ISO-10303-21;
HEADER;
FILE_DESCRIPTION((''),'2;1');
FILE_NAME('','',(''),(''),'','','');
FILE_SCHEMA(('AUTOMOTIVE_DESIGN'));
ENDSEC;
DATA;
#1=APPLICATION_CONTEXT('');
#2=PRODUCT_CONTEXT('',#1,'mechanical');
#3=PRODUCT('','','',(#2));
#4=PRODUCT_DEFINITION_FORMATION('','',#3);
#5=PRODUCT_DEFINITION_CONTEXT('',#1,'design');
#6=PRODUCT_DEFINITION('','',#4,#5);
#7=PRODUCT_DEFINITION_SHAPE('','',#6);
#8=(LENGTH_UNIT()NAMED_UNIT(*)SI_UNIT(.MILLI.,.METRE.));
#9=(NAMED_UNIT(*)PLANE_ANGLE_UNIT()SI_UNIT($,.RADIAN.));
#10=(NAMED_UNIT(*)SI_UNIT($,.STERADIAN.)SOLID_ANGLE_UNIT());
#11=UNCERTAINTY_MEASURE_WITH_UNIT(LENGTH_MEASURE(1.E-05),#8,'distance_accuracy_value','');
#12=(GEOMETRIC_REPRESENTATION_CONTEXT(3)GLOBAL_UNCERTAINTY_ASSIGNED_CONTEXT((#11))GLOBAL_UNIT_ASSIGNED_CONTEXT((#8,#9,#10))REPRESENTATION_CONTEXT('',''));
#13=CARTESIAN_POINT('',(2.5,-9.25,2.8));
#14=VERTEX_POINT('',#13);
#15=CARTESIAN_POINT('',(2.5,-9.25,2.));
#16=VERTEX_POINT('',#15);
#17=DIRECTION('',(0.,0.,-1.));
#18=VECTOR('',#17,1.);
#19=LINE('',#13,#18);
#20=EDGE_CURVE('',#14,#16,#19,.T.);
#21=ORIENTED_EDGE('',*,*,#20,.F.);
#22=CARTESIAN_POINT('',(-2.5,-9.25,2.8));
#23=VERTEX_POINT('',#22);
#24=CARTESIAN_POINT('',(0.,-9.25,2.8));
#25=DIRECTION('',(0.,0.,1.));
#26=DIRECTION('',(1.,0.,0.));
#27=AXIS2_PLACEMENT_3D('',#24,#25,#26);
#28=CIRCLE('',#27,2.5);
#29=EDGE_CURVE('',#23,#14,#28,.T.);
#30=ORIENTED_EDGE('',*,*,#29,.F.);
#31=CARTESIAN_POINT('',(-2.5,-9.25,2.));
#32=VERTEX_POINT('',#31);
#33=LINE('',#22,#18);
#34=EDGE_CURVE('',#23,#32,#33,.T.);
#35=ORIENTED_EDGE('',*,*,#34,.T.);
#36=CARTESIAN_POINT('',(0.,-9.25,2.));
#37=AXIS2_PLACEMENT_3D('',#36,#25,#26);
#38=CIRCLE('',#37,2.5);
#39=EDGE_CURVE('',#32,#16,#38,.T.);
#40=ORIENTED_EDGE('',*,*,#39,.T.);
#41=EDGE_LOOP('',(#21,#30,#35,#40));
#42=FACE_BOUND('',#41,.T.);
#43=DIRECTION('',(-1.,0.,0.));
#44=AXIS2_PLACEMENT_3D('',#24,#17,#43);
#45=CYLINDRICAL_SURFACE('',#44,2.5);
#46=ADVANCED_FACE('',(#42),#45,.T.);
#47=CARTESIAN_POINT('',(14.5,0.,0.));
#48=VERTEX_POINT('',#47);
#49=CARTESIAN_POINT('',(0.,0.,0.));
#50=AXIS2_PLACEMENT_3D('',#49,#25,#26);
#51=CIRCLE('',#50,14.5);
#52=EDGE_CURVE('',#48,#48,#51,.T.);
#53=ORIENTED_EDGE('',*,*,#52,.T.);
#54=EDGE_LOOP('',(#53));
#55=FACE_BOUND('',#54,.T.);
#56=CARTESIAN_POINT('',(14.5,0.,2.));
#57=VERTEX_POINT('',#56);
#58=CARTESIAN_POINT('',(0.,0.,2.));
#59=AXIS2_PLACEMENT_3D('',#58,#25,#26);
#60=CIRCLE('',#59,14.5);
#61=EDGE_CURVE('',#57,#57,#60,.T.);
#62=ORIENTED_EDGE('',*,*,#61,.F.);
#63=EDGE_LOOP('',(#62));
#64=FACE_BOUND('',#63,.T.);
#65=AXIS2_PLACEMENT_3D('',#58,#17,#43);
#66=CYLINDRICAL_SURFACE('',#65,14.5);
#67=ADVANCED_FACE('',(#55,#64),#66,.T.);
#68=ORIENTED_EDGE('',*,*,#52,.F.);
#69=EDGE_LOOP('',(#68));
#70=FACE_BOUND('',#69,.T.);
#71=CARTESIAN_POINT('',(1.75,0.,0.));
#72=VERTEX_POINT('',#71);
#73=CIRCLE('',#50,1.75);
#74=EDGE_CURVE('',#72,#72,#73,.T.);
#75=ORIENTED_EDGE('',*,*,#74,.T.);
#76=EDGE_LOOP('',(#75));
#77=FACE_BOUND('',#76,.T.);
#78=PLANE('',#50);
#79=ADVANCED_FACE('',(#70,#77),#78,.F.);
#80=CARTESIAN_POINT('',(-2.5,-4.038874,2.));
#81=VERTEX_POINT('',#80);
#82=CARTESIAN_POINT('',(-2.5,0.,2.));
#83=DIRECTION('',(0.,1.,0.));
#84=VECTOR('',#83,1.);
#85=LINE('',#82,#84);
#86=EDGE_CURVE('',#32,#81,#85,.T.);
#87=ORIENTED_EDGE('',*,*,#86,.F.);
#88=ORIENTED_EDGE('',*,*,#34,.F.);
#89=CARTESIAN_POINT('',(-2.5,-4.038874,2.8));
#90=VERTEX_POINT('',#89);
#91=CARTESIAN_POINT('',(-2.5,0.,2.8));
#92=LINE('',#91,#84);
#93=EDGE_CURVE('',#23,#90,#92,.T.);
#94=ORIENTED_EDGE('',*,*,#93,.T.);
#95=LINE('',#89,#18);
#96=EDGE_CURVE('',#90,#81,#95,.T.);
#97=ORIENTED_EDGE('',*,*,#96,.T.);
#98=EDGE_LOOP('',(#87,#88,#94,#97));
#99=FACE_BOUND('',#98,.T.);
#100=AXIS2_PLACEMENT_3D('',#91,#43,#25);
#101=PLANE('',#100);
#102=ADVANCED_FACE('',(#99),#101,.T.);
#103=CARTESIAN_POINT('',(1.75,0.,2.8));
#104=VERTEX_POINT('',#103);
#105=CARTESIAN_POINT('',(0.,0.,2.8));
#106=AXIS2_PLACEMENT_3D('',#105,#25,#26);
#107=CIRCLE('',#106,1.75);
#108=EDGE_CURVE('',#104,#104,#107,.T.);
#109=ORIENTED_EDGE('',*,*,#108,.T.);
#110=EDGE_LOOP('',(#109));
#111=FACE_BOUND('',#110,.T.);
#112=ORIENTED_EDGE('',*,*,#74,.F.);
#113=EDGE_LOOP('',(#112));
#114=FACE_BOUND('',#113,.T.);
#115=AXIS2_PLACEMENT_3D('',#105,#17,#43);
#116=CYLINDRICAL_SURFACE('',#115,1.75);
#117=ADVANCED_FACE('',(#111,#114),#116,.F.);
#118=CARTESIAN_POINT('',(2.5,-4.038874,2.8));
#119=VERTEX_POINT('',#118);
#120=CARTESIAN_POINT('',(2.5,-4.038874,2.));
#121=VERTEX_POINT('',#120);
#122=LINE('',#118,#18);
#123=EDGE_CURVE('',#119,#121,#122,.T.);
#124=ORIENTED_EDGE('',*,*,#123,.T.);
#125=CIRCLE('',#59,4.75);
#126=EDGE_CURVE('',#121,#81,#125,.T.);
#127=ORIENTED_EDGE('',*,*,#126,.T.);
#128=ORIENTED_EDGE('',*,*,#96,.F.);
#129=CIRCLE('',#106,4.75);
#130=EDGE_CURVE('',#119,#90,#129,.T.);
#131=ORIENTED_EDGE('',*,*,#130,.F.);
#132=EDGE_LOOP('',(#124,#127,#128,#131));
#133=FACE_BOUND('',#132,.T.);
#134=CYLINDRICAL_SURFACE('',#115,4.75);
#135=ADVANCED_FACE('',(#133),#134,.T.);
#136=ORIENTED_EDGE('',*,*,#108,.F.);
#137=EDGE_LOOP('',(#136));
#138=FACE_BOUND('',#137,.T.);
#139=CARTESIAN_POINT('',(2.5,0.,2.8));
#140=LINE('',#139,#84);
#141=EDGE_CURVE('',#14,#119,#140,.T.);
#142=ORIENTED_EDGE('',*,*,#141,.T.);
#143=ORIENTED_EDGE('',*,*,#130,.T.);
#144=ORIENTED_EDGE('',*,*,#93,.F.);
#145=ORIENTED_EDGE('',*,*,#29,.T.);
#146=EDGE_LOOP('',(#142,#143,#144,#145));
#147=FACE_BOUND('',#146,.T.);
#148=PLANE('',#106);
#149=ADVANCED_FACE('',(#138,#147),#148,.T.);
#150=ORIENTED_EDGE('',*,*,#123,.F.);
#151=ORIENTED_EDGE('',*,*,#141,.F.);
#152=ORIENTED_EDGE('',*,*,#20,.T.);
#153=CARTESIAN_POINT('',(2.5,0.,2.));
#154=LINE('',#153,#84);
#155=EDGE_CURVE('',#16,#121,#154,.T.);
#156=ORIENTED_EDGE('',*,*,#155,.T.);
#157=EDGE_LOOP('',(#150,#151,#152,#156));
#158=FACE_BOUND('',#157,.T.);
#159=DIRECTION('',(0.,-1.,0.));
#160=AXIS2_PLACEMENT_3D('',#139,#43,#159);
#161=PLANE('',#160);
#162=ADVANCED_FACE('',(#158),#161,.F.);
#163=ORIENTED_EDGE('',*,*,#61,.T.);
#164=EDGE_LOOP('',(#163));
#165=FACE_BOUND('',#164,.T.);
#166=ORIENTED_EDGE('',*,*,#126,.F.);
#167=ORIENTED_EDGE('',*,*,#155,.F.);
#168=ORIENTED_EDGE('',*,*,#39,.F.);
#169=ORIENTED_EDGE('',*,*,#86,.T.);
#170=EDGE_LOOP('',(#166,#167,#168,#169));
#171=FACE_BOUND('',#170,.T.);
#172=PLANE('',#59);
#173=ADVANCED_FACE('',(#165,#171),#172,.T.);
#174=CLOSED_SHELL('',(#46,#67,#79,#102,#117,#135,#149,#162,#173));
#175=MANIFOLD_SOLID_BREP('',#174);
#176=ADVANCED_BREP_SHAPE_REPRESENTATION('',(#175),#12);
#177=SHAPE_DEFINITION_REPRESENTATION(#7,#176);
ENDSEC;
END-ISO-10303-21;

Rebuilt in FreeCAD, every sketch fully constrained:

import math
import FreeCAD as App
import Part
import Sketcher
Q = App.Units.Quantity

doc = App.newDocument("Part")
params = doc.addObject("Spreadsheet::Sheet", "Params")
for row, (alias, value) in enumerate([
    ("sketch1_diameter", "29 mm"),
    ("pad1_length", "2 mm"),
    ("sketch2_radius", "2.5 mm"),
    ("sketch2_radius2", "4.75 mm"),
    ("pad2_length", "0.8 mm"),
    ("sketch3_diameter", "3.5 mm"),
    ("pocket1_length", "2.8 mm"),
], start=1):
    params.set(f"A{row}", alias)
    params.set(f"B{row}", "=" + value)
    params.setAlias(f"B{row}", alias)

body = doc.addObject("PartDesign::Body", "Body")

# Sketch on XY plane
sketch1 = doc.addObject("Sketcher::SketchObject", "Sketch")
body.addObject(sketch1)
sketch1.AttachmentSupport = (doc.XY_Plane, [""])
sketch1.MapMode = "FlatFace"
sketch1.addGeometry(Part.Circle(App.Vector(0, 0, 0), App.Vector(0, 0, 1), 14.5), False)
sketch1.addConstraint(Sketcher.Constraint("Coincident", 0, 3, -1, 1))
sketch1.addConstraint(Sketcher.Constraint("Diameter", 0, Q("29 mm")))
sketch1.setExpression("Constraints[1]", "Params.sketch1_diameter")
pad1 = doc.addObject("PartDesign::Pad", "Pad")
body.addObject(pad1)
pad1.Profile = sketch1
pad1.setExpression("Length", "Params.pad1_length")

# Sketch on XY plane
sketch2 = doc.addObject("Sketcher::SketchObject", "Sketch001")
body.addObject(sketch2)
sketch2.AttachmentSupport = (doc.XY_Plane, [""])
sketch2.MapMode = "FlatFace"
sketch2.AttachmentOffset = App.Placement(App.Vector(0, 0, 2), App.Rotation())
sketch2.addGeometry(Part.LineSegment(App.Vector(-2.5, -4.038874, 0), App.Vector(-2.5, -9.25, 0)), False)
sketch2.addGeometry(Part.ArcOfCircle(Part.Circle(App.Vector(0, -9.25, 0), App.Vector(0, 0, 1), 2.5), math.radians(180), math.radians(360)), False)
sketch2.addGeometry(Part.LineSegment(App.Vector(2.5, -9.25, 0), App.Vector(2.5, -4.038874, 0)), False)
sketch2.addGeometry(Part.ArcOfCircle(Part.Circle(App.Vector(0, 0, 0), App.Vector(0, 0, 1), 4.75), math.radians(-58.243136), math.radians(238.243136)), False)
sketch2.addConstraint(Sketcher.Constraint("Tangent", 0, 2, 1, 1))
sketch2.addConstraint(Sketcher.Constraint("Tangent", 1, 2, 2, 1))
sketch2.addConstraint(Sketcher.Constraint("Coincident", 2, 2, 3, 1))
sketch2.addConstraint(Sketcher.Constraint("Coincident", 3, 2, 0, 1))
sketch2.addConstraint(Sketcher.Constraint("Vertical", 0))
sketch2.addConstraint(Sketcher.Constraint("Vertical", 2))
sketch2.addConstraint(Sketcher.Constraint("Coincident", 3, 3, -1, 1))
sketch2.addConstraint(Sketcher.Constraint("PointOnObject", 1, 3, -2))
sketch2.addConstraint(Sketcher.Constraint("Radius", 1, Q("2.5 mm")))
sketch2.addConstraint(Sketcher.Constraint("Radius", 3, Q("4.75 mm")))
sketch2.addConstraint(Sketcher.Constraint("DistanceY", 1, 3, -1, 1, Q("9.25 mm")))
sketch2.setExpression("Constraints[8]", "Params.sketch2_radius")
sketch2.setExpression("Constraints[9]", "Params.sketch2_radius2")
pad2 = doc.addObject("PartDesign::Pad", "Pad001")
body.addObject(pad2)
pad2.Profile = sketch2
pad2.setExpression("Length", "Params.pad2_length")

# Sketch on XY plane
sketch3 = doc.addObject("Sketcher::SketchObject", "Sketch002")
body.addObject(sketch3)
sketch3.AttachmentSupport = (doc.XY_Plane, [""])
sketch3.MapMode = "FlatFace"
sketch3.addGeometry(Part.Circle(App.Vector(0, 0, 0), App.Vector(0, 0, 1), 1.75), False)
sketch3.addConstraint(Sketcher.Constraint("Coincident", 0, 3, -1, 1))
sketch3.addConstraint(Sketcher.Constraint("Diameter", 0, Q("3.5 mm")))
sketch3.setExpression("Constraints[1]", "Params.sketch3_diameter")
pocket1 = doc.addObject("PartDesign::Pocket", "Pocket")
body.addObject(pocket1)
pocket1.Profile = sketch3
pocket1.setExpression("Length", "Params.pocket1_length")
pocket1.Reversed = True

doc.recompute()
